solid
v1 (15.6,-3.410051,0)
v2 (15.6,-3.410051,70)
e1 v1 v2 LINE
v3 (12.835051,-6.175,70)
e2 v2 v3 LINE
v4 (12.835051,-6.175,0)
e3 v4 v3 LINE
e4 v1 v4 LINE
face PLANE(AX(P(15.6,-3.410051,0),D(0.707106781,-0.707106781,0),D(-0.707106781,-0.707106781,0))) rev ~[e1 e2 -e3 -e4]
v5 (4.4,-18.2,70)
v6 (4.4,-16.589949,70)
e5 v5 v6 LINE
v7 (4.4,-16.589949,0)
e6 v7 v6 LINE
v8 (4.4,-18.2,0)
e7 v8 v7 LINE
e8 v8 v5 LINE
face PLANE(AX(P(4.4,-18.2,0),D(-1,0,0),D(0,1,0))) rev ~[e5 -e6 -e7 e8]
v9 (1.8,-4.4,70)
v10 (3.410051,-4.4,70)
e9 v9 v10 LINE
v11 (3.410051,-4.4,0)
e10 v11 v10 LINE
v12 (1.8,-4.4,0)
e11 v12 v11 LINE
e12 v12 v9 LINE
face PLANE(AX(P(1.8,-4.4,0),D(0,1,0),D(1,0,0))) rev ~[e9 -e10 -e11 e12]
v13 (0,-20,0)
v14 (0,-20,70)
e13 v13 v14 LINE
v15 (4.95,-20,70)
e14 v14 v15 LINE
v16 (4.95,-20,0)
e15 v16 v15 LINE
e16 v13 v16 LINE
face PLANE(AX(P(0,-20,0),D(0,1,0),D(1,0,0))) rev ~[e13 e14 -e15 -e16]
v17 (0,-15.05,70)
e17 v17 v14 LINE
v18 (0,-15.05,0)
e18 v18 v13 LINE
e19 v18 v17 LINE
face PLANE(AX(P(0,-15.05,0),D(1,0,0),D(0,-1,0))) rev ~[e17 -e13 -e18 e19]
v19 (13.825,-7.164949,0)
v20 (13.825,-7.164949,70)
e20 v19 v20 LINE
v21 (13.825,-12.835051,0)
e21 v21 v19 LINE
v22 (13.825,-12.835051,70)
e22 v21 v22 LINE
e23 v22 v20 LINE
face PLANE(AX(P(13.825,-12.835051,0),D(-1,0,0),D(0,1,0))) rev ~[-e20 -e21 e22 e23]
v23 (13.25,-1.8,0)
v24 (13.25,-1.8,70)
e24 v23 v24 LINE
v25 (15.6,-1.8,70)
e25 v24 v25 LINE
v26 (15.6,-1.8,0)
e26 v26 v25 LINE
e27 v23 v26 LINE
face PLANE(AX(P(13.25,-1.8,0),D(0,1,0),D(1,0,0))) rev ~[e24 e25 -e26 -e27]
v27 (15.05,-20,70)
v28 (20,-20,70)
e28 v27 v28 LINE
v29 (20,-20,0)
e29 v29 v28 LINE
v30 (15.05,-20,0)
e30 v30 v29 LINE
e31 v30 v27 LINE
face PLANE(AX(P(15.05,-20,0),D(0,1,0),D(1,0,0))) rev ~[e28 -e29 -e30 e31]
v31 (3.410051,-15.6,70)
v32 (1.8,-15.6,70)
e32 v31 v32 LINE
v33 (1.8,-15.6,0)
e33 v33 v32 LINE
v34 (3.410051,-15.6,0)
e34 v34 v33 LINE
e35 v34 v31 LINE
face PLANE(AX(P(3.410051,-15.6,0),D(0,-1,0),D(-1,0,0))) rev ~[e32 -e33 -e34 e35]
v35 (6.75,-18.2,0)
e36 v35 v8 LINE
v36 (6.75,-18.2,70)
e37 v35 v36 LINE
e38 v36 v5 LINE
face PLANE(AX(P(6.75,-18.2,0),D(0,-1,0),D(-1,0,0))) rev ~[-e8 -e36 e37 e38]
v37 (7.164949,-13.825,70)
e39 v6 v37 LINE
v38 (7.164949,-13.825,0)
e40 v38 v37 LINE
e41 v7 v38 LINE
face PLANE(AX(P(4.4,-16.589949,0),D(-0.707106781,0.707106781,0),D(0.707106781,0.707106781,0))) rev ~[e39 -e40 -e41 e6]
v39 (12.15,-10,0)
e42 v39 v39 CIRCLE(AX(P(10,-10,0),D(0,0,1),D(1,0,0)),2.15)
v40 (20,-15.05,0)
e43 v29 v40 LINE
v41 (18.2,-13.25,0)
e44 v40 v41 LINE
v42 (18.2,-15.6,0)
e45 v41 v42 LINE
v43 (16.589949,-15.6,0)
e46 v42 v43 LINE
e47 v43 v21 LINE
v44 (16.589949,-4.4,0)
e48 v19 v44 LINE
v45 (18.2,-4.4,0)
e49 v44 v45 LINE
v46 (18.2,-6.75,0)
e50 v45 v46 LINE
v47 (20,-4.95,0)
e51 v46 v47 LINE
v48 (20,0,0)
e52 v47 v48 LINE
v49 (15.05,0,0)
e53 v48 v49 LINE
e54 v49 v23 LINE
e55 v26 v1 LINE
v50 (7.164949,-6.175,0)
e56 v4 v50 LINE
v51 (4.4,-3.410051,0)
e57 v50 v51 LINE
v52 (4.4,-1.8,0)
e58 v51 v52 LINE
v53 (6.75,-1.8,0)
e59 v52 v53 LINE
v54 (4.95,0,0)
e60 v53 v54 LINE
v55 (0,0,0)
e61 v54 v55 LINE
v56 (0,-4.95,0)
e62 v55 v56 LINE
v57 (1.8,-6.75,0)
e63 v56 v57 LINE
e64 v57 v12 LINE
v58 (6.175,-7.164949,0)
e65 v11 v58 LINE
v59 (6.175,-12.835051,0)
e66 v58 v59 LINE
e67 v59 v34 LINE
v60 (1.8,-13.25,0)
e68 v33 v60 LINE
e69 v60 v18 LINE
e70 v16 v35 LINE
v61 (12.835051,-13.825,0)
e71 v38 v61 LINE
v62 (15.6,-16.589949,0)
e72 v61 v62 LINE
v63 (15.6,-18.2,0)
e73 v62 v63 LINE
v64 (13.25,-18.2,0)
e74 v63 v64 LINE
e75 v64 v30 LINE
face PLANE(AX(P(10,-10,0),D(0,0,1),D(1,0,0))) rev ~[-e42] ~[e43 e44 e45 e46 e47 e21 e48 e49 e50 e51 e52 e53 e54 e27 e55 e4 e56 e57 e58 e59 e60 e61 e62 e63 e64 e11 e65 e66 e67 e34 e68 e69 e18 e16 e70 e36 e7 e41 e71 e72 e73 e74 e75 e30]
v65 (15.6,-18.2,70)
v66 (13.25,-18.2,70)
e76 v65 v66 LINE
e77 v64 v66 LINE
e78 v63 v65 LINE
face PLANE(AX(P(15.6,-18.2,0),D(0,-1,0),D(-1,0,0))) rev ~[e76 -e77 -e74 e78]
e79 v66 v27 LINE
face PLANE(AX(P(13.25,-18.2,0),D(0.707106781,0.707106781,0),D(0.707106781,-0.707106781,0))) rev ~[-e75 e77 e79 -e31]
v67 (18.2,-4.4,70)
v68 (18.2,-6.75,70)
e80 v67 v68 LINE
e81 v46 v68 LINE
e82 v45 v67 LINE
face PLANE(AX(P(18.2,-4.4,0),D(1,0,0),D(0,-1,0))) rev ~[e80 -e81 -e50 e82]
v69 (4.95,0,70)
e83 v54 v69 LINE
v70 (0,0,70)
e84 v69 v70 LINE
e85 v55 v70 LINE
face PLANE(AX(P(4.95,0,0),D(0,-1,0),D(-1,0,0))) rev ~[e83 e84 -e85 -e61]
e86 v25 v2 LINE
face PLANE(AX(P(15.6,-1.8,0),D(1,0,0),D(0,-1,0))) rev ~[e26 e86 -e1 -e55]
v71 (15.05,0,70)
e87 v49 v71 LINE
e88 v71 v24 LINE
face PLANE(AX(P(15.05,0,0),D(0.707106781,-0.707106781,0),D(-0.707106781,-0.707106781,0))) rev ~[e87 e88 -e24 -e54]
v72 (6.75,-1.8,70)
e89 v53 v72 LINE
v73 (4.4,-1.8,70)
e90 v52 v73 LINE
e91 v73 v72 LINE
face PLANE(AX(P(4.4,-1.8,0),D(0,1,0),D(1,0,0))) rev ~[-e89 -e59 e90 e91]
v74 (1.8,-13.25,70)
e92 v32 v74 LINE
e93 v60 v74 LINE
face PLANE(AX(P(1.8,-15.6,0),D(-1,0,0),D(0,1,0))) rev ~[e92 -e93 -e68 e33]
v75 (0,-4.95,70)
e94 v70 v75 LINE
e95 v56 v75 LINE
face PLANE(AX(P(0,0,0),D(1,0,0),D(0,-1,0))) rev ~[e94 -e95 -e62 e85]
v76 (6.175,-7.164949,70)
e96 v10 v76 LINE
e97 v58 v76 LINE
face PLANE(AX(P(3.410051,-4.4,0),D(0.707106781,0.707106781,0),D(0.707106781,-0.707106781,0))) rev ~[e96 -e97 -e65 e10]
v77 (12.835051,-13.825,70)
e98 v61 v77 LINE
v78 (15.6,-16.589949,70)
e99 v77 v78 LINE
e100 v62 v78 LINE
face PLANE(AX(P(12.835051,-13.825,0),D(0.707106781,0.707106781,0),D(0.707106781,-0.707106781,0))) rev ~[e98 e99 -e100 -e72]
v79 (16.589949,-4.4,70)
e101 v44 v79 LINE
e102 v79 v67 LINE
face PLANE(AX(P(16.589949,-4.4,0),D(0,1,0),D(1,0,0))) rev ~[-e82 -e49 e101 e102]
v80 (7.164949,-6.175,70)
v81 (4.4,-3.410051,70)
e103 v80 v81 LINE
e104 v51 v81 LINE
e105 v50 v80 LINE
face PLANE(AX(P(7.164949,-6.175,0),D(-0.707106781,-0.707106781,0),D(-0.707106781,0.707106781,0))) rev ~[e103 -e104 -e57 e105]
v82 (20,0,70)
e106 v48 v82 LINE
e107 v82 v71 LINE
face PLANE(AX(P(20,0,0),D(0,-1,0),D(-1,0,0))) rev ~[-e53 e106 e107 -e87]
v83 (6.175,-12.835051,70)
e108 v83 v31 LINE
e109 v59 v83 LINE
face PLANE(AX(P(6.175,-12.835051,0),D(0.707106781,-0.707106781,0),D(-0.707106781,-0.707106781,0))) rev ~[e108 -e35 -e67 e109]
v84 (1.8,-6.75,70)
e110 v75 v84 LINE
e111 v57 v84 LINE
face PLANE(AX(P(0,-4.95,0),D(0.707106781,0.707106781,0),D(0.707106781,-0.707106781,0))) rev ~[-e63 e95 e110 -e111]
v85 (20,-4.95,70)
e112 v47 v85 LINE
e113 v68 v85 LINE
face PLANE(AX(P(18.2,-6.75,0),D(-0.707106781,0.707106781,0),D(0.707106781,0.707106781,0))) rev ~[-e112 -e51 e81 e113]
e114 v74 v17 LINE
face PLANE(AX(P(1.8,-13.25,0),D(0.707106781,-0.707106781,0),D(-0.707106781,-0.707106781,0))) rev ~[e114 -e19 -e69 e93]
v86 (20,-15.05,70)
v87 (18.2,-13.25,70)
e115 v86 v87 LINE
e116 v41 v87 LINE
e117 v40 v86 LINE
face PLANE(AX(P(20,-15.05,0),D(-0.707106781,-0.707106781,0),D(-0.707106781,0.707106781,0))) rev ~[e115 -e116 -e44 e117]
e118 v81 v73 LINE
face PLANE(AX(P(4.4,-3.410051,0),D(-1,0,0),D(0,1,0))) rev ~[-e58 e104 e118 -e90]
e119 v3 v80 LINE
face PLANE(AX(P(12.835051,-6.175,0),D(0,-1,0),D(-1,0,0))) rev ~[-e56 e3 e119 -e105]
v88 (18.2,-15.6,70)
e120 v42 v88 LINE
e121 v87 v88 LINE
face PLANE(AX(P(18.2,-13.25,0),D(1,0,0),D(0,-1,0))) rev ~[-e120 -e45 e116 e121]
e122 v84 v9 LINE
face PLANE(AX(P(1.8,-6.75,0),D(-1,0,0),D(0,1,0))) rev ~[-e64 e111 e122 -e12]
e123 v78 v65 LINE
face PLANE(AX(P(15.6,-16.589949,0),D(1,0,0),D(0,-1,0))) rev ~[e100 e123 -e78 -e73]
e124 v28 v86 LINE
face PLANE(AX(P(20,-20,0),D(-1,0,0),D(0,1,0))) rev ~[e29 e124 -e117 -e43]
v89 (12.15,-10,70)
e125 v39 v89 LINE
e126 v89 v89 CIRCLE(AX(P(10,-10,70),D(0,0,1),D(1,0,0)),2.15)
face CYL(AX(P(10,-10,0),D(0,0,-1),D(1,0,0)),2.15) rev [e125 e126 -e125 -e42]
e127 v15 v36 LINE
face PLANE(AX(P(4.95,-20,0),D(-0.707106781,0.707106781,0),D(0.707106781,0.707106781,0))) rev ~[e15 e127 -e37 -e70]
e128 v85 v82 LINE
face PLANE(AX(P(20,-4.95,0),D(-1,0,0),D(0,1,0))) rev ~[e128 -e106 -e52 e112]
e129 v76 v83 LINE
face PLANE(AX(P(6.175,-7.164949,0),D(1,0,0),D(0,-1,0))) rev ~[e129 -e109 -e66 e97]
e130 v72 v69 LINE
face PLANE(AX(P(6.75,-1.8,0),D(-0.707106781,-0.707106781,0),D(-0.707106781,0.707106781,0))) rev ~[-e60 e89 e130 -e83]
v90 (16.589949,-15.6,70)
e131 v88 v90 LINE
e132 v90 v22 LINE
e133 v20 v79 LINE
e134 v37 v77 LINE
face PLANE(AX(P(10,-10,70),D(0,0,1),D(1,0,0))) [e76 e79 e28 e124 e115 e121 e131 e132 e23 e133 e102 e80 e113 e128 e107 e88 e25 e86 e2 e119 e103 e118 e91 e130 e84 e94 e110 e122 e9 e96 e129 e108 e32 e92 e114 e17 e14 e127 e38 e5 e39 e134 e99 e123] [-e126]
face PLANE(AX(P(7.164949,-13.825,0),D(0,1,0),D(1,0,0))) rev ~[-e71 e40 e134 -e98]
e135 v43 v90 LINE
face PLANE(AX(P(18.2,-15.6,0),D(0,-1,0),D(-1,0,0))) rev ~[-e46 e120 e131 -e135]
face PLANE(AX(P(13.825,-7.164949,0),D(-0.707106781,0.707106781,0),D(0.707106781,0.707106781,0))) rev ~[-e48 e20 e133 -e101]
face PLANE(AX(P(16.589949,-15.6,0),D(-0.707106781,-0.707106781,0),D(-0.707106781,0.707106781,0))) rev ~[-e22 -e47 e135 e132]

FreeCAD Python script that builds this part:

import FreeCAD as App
import Part
import Sketcher
Q = App.Units.Quantity

doc = App.newDocument("Part")
params = doc.addObject("Spreadsheet::Sheet", "Params")
for row, (alias, value) in enumerate([
    ("sketch1_diameter", "4.3 mm"),
    ("sketch1_width", "4.95 mm"),
    ("sketch1_width2", "2.35 mm"),
    ("pad1_length", "70 mm"),
], start=1):
    params.set(f"A{row}", alias)
    params.set(f"B{row}", "=" + value)
    params.setAlias(f"B{row}", alias)

body = doc.addObject("PartDesign::Body", "Body")

# Sketch on XY plane
sketch1 = body.newObject("Sketcher::SketchObject", "Sketch")
sketch1.AttachmentSupport = (doc.getObject("XY_Plane"), [""])
sketch1.MapMode = "FlatFace"
sketch1.addGeometry([
    Part.LineSegment(App.Vector(0, 0, 0), App.Vector(0, -5, 0)),  # 0
    Part.LineSegment(App.Vector(0, -5, 0), App.Vector(1.8, -6.8, 0)),  # 1
    Part.LineSegment(App.Vector(1.8, -6.8, 0), App.Vector(1.8, -4.4, 0)),  # 2
    Part.LineSegment(App.Vector(1.8, -4.4, 0), App.Vector(3.4, -4.4, 0)),  # 3
    Part.LineSegment(App.Vector(3.4, -4.4, 0), App.Vector(6.2, -7.2, 0)),  # 4
    Part.LineSegment(App.Vector(6.2, -7.2, 0), App.Vector(6.2, -12.8, 0)),  # 5
    Part.LineSegment(App.Vector(6.2, -12.8, 0), App.Vector(3.4, -15.6, 0)),  # 6
    Part.LineSegment(App.Vector(3.4, -15.6, 0), App.Vector(1.8, -15.6, 0)),  # 7
    Part.LineSegment(App.Vector(1.8, -15.6, 0), App.Vector(1.8, -13.2, 0)),  # 8
    Part.LineSegment(App.Vector(1.8, -13.2, 0), App.Vector(0, -15.1, 0)),  # 9
    Part.LineSegment(App.Vector(0, -15.1, 0), App.Vector(0, -20, 0)),  # 10
    Part.LineSegment(App.Vector(0, -20, 0), App.Vector(5, -20, 0)),  # 11
    Part.LineSegment(App.Vector(5, -20, 0), App.Vector(6.8, -18.2, 0)),  # 12
    Part.LineSegment(App.Vector(6.8, -18.2, 0), App.Vector(4.4, -18.2, 0)),  # 13
    Part.LineSegment(App.Vector(4.4, -18.2, 0), App.Vector(4.4, -16.6, 0)),  # 14
    Part.LineSegment(App.Vector(4.4, -16.6, 0), App.Vector(7.2, -13.8, 0)),  # 15
    Part.LineSegment(App.Vector(7.2, -13.8, 0), App.Vector(12.8, -13.8, 0)),  # 16
    Part.LineSegment(App.Vector(12.8, -13.8, 0), App.Vector(15.6, -16.6, 0)),  # 17
    Part.LineSegment(App.Vector(15.6, -16.6, 0), App.Vector(15.6, -18.2, 0)),  # 18
    Part.LineSegment(App.Vector(15.6, -18.2, 0), App.Vector(13.2, -18.2, 0)),  # 19
    Part.LineSegment(App.Vector(13.2, -18.2, 0), App.Vector(15.1, -20, 0)),  # 20
    Part.LineSegment(App.Vector(15.1, -20, 0), App.Vector(20, -20, 0)),  # 21
    Part.LineSegment(App.Vector(20, -20, 0), App.Vector(20, -15.1, 0)),  # 22
    Part.LineSegment(App.Vector(20, -15.1, 0), App.Vector(18.2, -13.2, 0)),  # 23
    Part.LineSegment(App.Vector(18.2, -13.2, 0), App.Vector(18.2, -15.6, 0)),  # 24
    Part.LineSegment(App.Vector(18.2, -15.6, 0), App.Vector(16.6, -15.6, 0)),  # 25
    Part.LineSegment(App.Vector(16.6, -15.6, 0), App.Vector(13.8, -12.8, 0)),  # 26
    Part.LineSegment(App.Vector(13.8, -12.8, 0), App.Vector(13.8, -7.2, 0)),  # 27
    Part.LineSegment(App.Vector(13.8, -7.2, 0), App.Vector(16.6, -4.4, 0)),  # 28
    Part.LineSegment(App.Vector(16.6, -4.4, 0), App.Vector(18.2, -4.4, 0)),  # 29
    Part.LineSegment(App.Vector(18.2, -4.4, 0), App.Vector(18.2, -6.8, 0)),  # 30
    Part.LineSegment(App.Vector(18.2, -6.8, 0), App.Vector(20, -5, 0)),  # 31
    Part.LineSegment(App.Vector(20, -5, 0), App.Vector(20, 0, 0)),  # 32
    Part.LineSegment(App.Vector(20, 0, 0), App.Vector(15.1, 0, 0)),  # 33
    Part.LineSegment(App.Vector(15.1, 0, 0), App.Vector(13.2, -1.8, 0)),  # 34
    Part.LineSegment(App.Vector(13.2, -1.8, 0), App.Vector(15.6, -1.8, 0)),  # 35
    Part.LineSegment(App.Vector(15.6, -1.8, 0), App.Vector(15.6, -3.4, 0)),  # 36
    Part.LineSegment(App.Vector(15.6, -3.4, 0), App.Vector(12.8, -6.2, 0)),  # 37
    Part.LineSegment(App.Vector(12.8, -6.2, 0), App.Vector(7.2, -6.2, 0)),  # 38
    Part.LineSegment(App.Vector(7.2, -6.2, 0), App.Vector(4.4, -3.4, 0)),  # 39
    Part.LineSegment(App.Vector(4.4, -3.4, 0), App.Vector(4.4, -1.8, 0)),  # 40
    Part.LineSegment(App.Vector(4.4, -1.8, 0), App.Vector(6.8, -1.8, 0)),  # 41
    Part.LineSegment(App.Vector(6.8, -1.8, 0), App.Vector(5, 0, 0)),  # 42
    Part.LineSegment(App.Vector(5, 0, 0), App.Vector(0, 0, 0)),  # 43
    Part.Circle(App.Vector(10, -10, 0), App.Vector(0, 0, 1), 2.1),  # 44
], False)
sketch1.addConstraint([
    Sketcher.Constraint("Coincident", 0, 2, 1, 1),
    Sketcher.Constraint("Coincident", 1, 2, 2, 1),
    Sketcher.Constraint("Coincident", 2, 2, 3, 1),
    Sketcher.Constraint("Coincident", 3, 2, 4, 1),
    Sketcher.Constraint("Coincident", 4, 2, 5, 1),
    Sketcher.Constraint("Coincident", 5, 2, 6, 1),
    Sketcher.Constraint("Coincident", 6, 2, 7, 1),
    Sketcher.Constraint("Coincident", 7, 2, 8, 1),
    Sketcher.Constraint("Coincident", 8, 2, 9, 1),
    Sketcher.Constraint("Coincident", 9, 2, 10, 1),
    Sketcher.Constraint("Coincident", 10, 2, 11, 1),
    Sketcher.Constraint("Coincident", 11, 2, 12, 1),
    Sketcher.Constraint("Coincident", 12, 2, 13, 1),
    Sketcher.Constraint("Coincident", 13, 2, 14, 1),
    Sketcher.Constraint("Coincident", 14, 2, 15, 1),
    Sketcher.Constraint("Coincident", 15, 2, 16, 1),
    Sketcher.Constraint("Coincident", 16, 2, 17, 1),
    Sketcher.Constraint("Coincident", 17, 2, 18, 1),
    Sketcher.Constraint("Coincident", 18, 2, 19, 1),
    Sketcher.Constraint("Coincident", 19, 2, 20, 1),
    Sketcher.Constraint("Coincident", 20, 2, 21, 1),
    Sketcher.Constraint("Coincident", 21, 2, 22, 1),
    Sketcher.Constraint("Coincident", 22, 2, 23, 1),
    Sketcher.Constraint("Coincident", 23, 2, 24, 1),
    Sketcher.Constraint("Coincident", 24, 2, 25, 1),
    Sketcher.Constraint("Coincident", 25, 2, 26, 1),
    Sketcher.Constraint("Coincident", 26, 2, 27, 1),
    Sketcher.Constraint("Coincident", 27, 2, 28, 1),
    Sketcher.Constraint("Coincident", 28, 2, 29, 1),
    Sketcher.Constraint("Coincident", 29, 2, 30, 1),
    Sketcher.Constraint("Coincident", 30, 2, 31, 1),
    Sketcher.Constraint("Coincident", 31, 2, 32, 1),
    Sketcher.Constraint("Coincident", 32, 2, 33, 1),
    Sketcher.Constraint("Coincident", 33, 2, 34, 1),
    Sketcher.Constraint("Coincident", 34, 2, 35, 1),
    Sketcher.Constraint("Coincident", 35, 2, 36, 1),
    Sketcher.Constraint("Coincident", 36, 2, 37, 1),
    Sketcher.Constraint("Coincident", 37, 2, 38, 1),
    Sketcher.Constraint("Coincident", 38, 2, 39, 1),
    Sketcher.Constraint("Coincident", 39, 2, 40, 1),
    Sketcher.Constraint("Coincident", 40, 2, 41, 1),
    Sketcher.Constraint("Coincident", 41, 2, 42, 1),
    Sketcher.Constraint("Coincident", 42, 2, 43, 1),
    Sketcher.Constraint("Coincident", 43, 2, 0, 1),
    Sketcher.Constraint("Vertical", 0),
    Sketcher.Constraint("Vertical", 2),
    Sketcher.Constraint("Horizontal", 3),
    Sketcher.Constraint("Vertical", 5),
    Sketcher.Constraint("Horizontal", 7),
    Sketcher.Constraint("Vertical", 8),
    Sketcher.Constraint("Vertical", 10),
    Sketcher.Constraint("Horizontal", 11),
    Sketcher.Constraint("Horizontal", 13),
    Sketcher.Constraint("Vertical", 14),
    Sketcher.Constraint("Horizontal", 16),
    Sketcher.Constraint("Vertical", 18),
    Sketcher.Constraint("Horizontal", 19),
    Sketcher.Constraint("Horizontal", 21),
    Sketcher.Constraint("Vertical", 22),
    Sketcher.Constraint("Vertical", 24),
    Sketcher.Constraint("Horizontal", 25),
    Sketcher.Constraint("Vertical", 27),
    Sketcher.Constraint("Horizontal", 29),
    Sketcher.Constraint("Vertical", 30),
    Sketcher.Constraint("Vertical", 32),
    Sketcher.Constraint("Horizontal", 33),
    Sketcher.Constraint("Horizontal", 35),
    Sketcher.Constraint("Vertical", 36),
    Sketcher.Constraint("Horizontal", 38),
    Sketcher.Constraint("Vertical", 40),
    Sketcher.Constraint("Horizontal", 41),
    Sketcher.Constraint("Horizontal", 43),
    Sketcher.Constraint("Coincident", 43, 2, -1, 1),
    Sketcher.Constraint("PointOnObject", 9, 2, -2),
    Sketcher.Constraint("PointOnObject", 32, 2, -1),
    Sketcher.Constraint("Parallel", 1, 4),
    Sketcher.Constraint("Perpendicular", 4, 6),
    Sketcher.Constraint("Parallel", 6, 9),
    Sketcher.Constraint("Parallel", 9, 12),
    Sketcher.Constraint("Parallel", 12, 15),
    Sketcher.Constraint("Perpendicular", 15, 17),
    Sketcher.Constraint("Parallel", 17, 20),
    Sketcher.Constraint("Parallel", 20, 23),
    Sketcher.Constraint("Parallel", 23, 26),
    Sketcher.Constraint("Perpendicular", 26, 28),
    Sketcher.Constraint("Parallel", 28, 31),
    Sketcher.Constraint("Parallel", 31, 34),
    Sketcher.Constraint("Parallel", 34, 37),
    Sketcher.Constraint("Perpendicular", 37, 39),
    Sketcher.Constraint("Parallel", 39, 42),
    Sketcher.Constraint("Horizontal", 14, 2, 17, 2),
    Sketcher.Constraint("Horizontal", 13, 2, 18, 2),
    Sketcher.Constraint("Horizontal", 11, 2, 20, 2),
    Sketcher.Constraint("Horizontal", 9, 2, 22, 2),
    Sketcher.Constraint("Horizontal", 8, 2, 23, 2),
    Sketcher.Constraint("Horizontal", 7, 2, 24, 2),
    Sketcher.Constraint("Horizontal", 5, 2, 26, 2),
    Sketcher.Constraint("Horizontal", 4, 2, 27, 2),
    Sketcher.Constraint("Horizontal", 3, 2, 28, 2),
    Sketcher.Constraint("Horizontal", 1, 2, 30, 2),
    Sketcher.Constraint("Horizontal", 0, 2, 31, 2),
    Sketcher.Constraint("Horizontal", 36, 2, 39, 2),
    Sketcher.Constraint("Horizontal", 35, 2, 40, 2),
    Sketcher.Constraint("Vertical", 3, 2, 6, 2),
    Sketcher.Constraint("Vertical", 2, 2, 7, 2),
    Sketcher.Constraint("Vertical", 25, 2, 28, 2),
    Sketcher.Constraint("Vertical", 24, 2, 29, 2),
    Sketcher.Constraint("Vertical", 20, 2, 33, 2),
    Sketcher.Constraint("Vertical", 19, 2, 34, 2),
    Sketcher.Constraint("Vertical", 18, 2, 35, 2),
    Sketcher.Constraint("Vertical", 16, 2, 37, 2),
    Sketcher.Constraint("Vertical", 15, 2, 38, 2),
    Sketcher.Constraint("Vertical", 12, 2, 41, 2),
    Sketcher.Constraint("Equal", 13, 19),
    Sketcher.Constraint("Equal", 11, 21),
    Sketcher.Constraint("Equal", 7, 25),
    Sketcher.Constraint("Equal", 43, 0),
    Sketcher.Constraint("Equal", 41, 2),
    Sketcher.Constraint("Equal", 38, 5),
    Sketcher.Constraint("Equal", 2, 8),
    Sketcher.Constraint("Equal", 0, 10),
    Sketcher.Constraint("Equal", 29, 14),
    Sketcher.Constraint("Equal", 18, 36),
    Sketcher.Constraint("Equal", 9, 12),
    Sketcher.Constraint("Equal", 6, 15),
    Sketcher.Constraint("Diameter", 44, Q("4.3 mm")),
    Sketcher.Constraint("DistanceX", -1, 1, 44, 3, Q("10 mm")),
    Sketcher.Constraint("DistanceY", 44, 3, -1, 1, Q("10 mm")),
    Sketcher.Constraint("DistanceY", 10, 2, -1, 1, Q("20 mm")),
    Sketcher.Constraint("DistanceX", 11, 1, 11, 2, Q("4.95 mm")),
    Sketcher.Constraint("DistanceX", 13, 2, 13, 1, Q("2.35 mm")),
    Sketcher.Constraint("DistanceX", -1, 1, 1, 2, Q("1.8 mm")),
    Sketcher.Constraint("DistanceX", 4, 2, 27, 2, Q("7.65 mm")),
    Sketcher.Constraint("DistanceX", 16, 1, 16, 2, Q("5.670101 mm")),
])
sketch1.setExpression("Constraints[125]", "Params.sketch1_diameter")
sketch1.setExpression("Constraints[129]", "Params.sketch1_width")
sketch1.setExpression("Constraints[130]", "Params.sketch1_width2")
pad1 = body.newObject("PartDesign::Pad", "Pad")
pad1.Profile = sketch1
pad1.setExpression("Length", "Params.pad1_length")

doc.recompute()
